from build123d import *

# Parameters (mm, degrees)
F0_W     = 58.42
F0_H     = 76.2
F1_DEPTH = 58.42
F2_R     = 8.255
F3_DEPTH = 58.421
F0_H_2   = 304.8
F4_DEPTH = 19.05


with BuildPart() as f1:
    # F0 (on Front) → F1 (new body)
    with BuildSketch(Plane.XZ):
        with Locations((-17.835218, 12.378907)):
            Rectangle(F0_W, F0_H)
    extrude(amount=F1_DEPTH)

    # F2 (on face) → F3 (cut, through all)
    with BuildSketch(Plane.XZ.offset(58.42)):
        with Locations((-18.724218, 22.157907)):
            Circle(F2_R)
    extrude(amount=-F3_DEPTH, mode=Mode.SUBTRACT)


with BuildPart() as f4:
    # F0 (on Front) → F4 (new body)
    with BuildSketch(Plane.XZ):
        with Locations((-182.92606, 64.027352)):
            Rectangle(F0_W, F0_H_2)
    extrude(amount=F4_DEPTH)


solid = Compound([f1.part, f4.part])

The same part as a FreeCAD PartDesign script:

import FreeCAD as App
import Part
import Sketcher
from FreeCAD import Vector
Q = App.Units.Quantity

doc = App.newDocument("Part")
body = doc.addObject("PartDesign::Body", "Body")

# Sketch on XZ plane
sketch1 = body.newObject("Sketcher::SketchObject", "Sketch")
sketch1.AttachmentSupport = (doc.getObject("XZ_Plane"), [""])
sketch1.MapMode = "FlatFace"
sketch1.addGeometry(Part.LineSegment(Vector(-47.045218, 50.478907, 0), Vector(-47.045218, -25.721093, 0)), False)
sketch1.addGeometry(Part.LineSegment(Vector(-47.045218, -25.721093, 0), Vector(11.374782, -25.721093, 0)), False)
sketch1.addGeometry(Part.LineSegment(Vector(11.374782, -25.721093, 0), Vector(11.374782, 50.478907, 0)), False)
sketch1.addGeometry(Part.LineSegment(Vector(11.374782, 50.478907, 0), Vector(-47.045218, 50.478907, 0)), False)
sketch1.addConstraint(Sketcher.Constraint("Coincident", 0, 2, 1, 1))
sketch1.addConstraint(Sketcher.Constraint("Coincident", 1, 2, 2, 1))
sketch1.addConstraint(Sketcher.Constraint("Coincident", 2, 2, 3, 1))
sketch1.addConstraint(Sketcher.Constraint("Coincident", 3, 2, 0, 1))
sketch1.addConstraint(Sketcher.Constraint("Vertical", 0))
sketch1.addConstraint(Sketcher.Constraint("Horizontal", 1))
sketch1.addConstraint(Sketcher.Constraint("Vertical", 2))
sketch1.addConstraint(Sketcher.Constraint("Horizontal", 3))
sketch1.addConstraint(Sketcher.Constraint("DistanceY", 0, 2, 0, 1, Q("3 in")))
sketch1.addConstraint(Sketcher.Constraint("DistanceX", 1, 1, 1, 2, Q("2.3 in")))
sketch1.addConstraint(Sketcher.Constraint("DistanceX", 0, 2, -1, 1, Q("47.045218 mm")))
sketch1.addConstraint(Sketcher.Constraint("DistanceY", 0, 2, -1, 1, Q("25.721093 mm")))
pad1 = body.newObject("PartDesign::Pad", "Pad")
pad1.Profile = sketch1
pad1.Length = Q("2.3 in")

# Sketch on XZ plane
sketch2 = body.newObject("Sketcher::SketchObject", "Sketch001")
sketch2.AttachmentSupport = (doc.getObject("XZ_Plane"), [""])
sketch2.MapMode = "FlatFace"
sketch2.AttachmentOffset = App.Placement(Vector(0, 0, 2.3 * 25.4), App.Rotation())
sketch2.addGeometry(Part.Circle(Vector(-18.724218, 22.157907, 0), Vector(0, 0, 1), 8.255), False)
sketch2.addConstraint(Sketcher.Constraint("Diameter", 0, Q("0.65 in")))
sketch2.addConstraint(Sketcher.Constraint("DistanceX", 0, 3, -1, 1, Q("18.724218 mm")))
sketch2.addConstraint(Sketcher.Constraint("DistanceY", -1, 1, 0, 3, Q("22.157907 mm")))
pocket1 = body.newObject("PartDesign::Pocket", "Pocket")
pocket1.Profile = sketch2
pocket1.Type = "ThroughAll"
body2 = doc.addObject("PartDesign::Body", "Body001")

# Sketch on XZ plane
sketch3 = body2.newObject("Sketcher::SketchObject", "Sketch002")
sketch3.AttachmentSupport = (doc.getObject("XZ_Plane001"), [""])
sketch3.MapMode = "FlatFace"
sketch3.addGeometry(Part.LineSegment(Vector(-212.13606, 216.427352, 0), Vector(-212.13606, -88.372648, 0)), False)
sketch3.addGeometry(Part.LineSegment(Vector(-212.13606, -88.372648, 0), Vector(-153.71606, -88.372648, 0)), False)
sketch3.addGeometry(Part.LineSegment(Vector(-153.71606, -88.372648, 0), Vector(-153.71606, 216.427352, 0)), False)
sketch3.addGeometry(Part.LineSegment(Vector(-153.71606, 216.427352, 0), Vector(-212.13606, 216.427352, 0)), False)
sketch3.addConstraint(Sketcher.Constraint("Coincident", 0, 2, 1, 1))
sketch3.addConstraint(Sketcher.Constraint("Coincident", 1, 2, 2, 1))
sketch3.addConstraint(Sketcher.Constraint("Coincident", 2, 2, 3, 1))
sketch3.addConstraint(Sketcher.Constraint("Coincident", 3, 2, 0, 1))
sketch3.addConstraint(Sketcher.Constraint("Vertical", 0))
sketch3.addConstraint(Sketcher.Constraint("Horizontal", 1))
sketch3.addConstraint(Sketcher.Constraint("Vertical", 2))
sketch3.addConstraint(Sketcher.Constraint("Horizontal", 3))
sketch3.addConstraint(Sketcher.Constraint("DistanceY", 0, 2, 0, 1, Q("12 in")))
sketch3.addConstraint(Sketcher.Constraint("DistanceX", 1, 1, 1, 2, Q("2.3 in")))
sketch3.addConstraint(Sketcher.Constraint("DistanceX", 0, 2, -1, 1, Q("212.13606 mm")))
sketch3.addConstraint(Sketcher.Constraint("DistanceY", 0, 2, -1, 1, Q("88.372648 mm")))
pad2 = body2.newObject("PartDesign::Pad", "Pad001")
pad2.Profile = sketch3
pad2.Length = Q("0.75 in")

doc.recompute()
